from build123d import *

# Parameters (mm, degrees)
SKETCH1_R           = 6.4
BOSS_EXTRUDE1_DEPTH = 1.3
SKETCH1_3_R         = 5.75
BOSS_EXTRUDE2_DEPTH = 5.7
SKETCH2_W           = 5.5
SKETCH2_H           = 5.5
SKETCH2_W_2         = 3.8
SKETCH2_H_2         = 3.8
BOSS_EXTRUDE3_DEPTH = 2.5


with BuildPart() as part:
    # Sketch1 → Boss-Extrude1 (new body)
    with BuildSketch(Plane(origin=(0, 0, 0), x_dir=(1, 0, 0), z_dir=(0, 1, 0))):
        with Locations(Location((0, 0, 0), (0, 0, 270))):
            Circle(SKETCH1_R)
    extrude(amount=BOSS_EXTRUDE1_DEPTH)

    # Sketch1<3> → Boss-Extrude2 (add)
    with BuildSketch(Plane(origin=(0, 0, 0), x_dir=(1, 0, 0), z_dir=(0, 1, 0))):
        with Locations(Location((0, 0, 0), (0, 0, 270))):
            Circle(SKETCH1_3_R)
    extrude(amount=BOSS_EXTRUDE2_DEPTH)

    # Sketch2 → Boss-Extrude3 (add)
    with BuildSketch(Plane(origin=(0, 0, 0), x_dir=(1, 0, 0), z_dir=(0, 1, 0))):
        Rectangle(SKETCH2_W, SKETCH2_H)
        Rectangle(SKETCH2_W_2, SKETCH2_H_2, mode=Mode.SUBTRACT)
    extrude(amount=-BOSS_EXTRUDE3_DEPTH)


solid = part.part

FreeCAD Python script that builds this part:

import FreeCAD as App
import Part
import Sketcher
from FreeCAD import Vector
Q = App.Units.Quantity


def add_polygon(sketch, points):
    """Adds a closed chain of lines whose ends are joined by coincident constraints."""
    first, n = sketch.GeometryCount, len(points)
    for a, b in zip(points, points[1:] + points[:1]):
        sketch.addGeometry(Part.LineSegment(App.Vector(*a, 0), App.Vector(*b, 0)), False)
    for i in range(n):
        sketch.addConstraint(Sketcher.Constraint("Coincident", first + i, 2, first + (i + 1) % n, 1))

doc = App.newDocument("Part")
body = doc.addObject("PartDesign::Body", "Body")

# Sketch on XZ plane
sketch1 = doc.addObject("Sketcher::SketchObject", "Sketch")
body.addObject(sketch1)
sketch1.AttachmentSupport = (doc.XZ_Plane, [""])
sketch1.MapMode = "FlatFace"
sketch1.addGeometry(Part.Circle(Vector(0, 0, 0), Vector(0, 0, 1), 6), False)
sketch1.addConstraint(Sketcher.Constraint("Coincident", 0, 3, -1, 1))
sketch1.addConstraint(Sketcher.Constraint("Diameter", 0, Q("12.8 mm")))
pad1 = doc.addObject("PartDesign::Pad", "Pad")
body.addObject(pad1)
pad1.Profile = sketch1
pad1.Length = 1.3
pad1.Reversed = True

# Sketch on XZ plane
sketch2 = doc.addObject("Sketcher::SketchObject", "Sketch001")
body.addObject(sketch2)
sketch2.AttachmentSupport = (doc.XZ_Plane, [""])
sketch2.MapMode = "FlatFace"
sketch2.addGeometry(Part.Circle(Vector(0, 0, 0), Vector(0, 0, 1), 6), False)
sketch2.addConstraint(Sketcher.Constraint("Coincident", 0, 3, -1, 1))
sketch2.addConstraint(Sketcher.Constraint("Diameter", 0, Q("11.5 mm")))
pad2 = doc.addObject("PartDesign::Pad", "Pad001")
body.addObject(pad2)
pad2.Profile = sketch2
pad2.Length = 5.7
pad2.Reversed = True

# Sketch on XZ plane
sketch3 = doc.addObject("Sketcher::SketchObject", "Sketch002")
body.addObject(sketch3)
sketch3.AttachmentSupport = (doc.XZ_Plane, [""])
sketch3.MapMode = "FlatFace"
add_polygon(sketch3, [(-2.8, -2.8), (-2.8, 2.8), (2.8, 2.8), (2.8, -2.8)])  # lines 0-3
add_polygon(sketch3, [(1.9, 1.9), (-1.9, 1.9), (-1.9, -1.9), (1.9, -1.9)])  # lines 4-7
sketch3.addConstraint(Sketcher.Constraint("Vertical", 0))
sketch3.addConstraint(Sketcher.Constraint("Horizontal", 1))
sketch3.addConstraint(Sketcher.Constraint("Vertical", 2))
sketch3.addConstraint(Sketcher.Constraint("Horizontal", 3))
sketch3.addConstraint(Sketcher.Constraint("Horizontal", 4))
sketch3.addConstraint(Sketcher.Constraint("Vertical", 5))
sketch3.addConstraint(Sketcher.Constraint("Horizontal", 6))
sketch3.addConstraint(Sketcher.Constraint("Vertical", 7))
sketch3.addConstraint(Sketcher.Constraint("Symmetric", 0, 2, 2, 2, -1, 1))
sketch3.addConstraint(Sketcher.Constraint("Symmetric", 4, 2, 6, 2, -1, 1))
sketch3.addConstraint(Sketcher.Constraint("Equal", 3, 0))
sketch3.addConstraint(Sketcher.Constraint("Equal", 6, 5))
sketch3.addConstraint(Sketcher.Constraint("DistanceX", 1, 1, 1, 2, Q("5.5 mm")))
sketch3.addConstraint(Sketcher.Constraint("DistanceX", 4, 2, 4, 1, Q("3.8 mm")))
pad3 = doc.addObject("PartDesign::Pad", "Pad002")
body.addObject(pad3)
pad3.Profile = sketch3
pad3.Length = 2.5

doc.recompute()
